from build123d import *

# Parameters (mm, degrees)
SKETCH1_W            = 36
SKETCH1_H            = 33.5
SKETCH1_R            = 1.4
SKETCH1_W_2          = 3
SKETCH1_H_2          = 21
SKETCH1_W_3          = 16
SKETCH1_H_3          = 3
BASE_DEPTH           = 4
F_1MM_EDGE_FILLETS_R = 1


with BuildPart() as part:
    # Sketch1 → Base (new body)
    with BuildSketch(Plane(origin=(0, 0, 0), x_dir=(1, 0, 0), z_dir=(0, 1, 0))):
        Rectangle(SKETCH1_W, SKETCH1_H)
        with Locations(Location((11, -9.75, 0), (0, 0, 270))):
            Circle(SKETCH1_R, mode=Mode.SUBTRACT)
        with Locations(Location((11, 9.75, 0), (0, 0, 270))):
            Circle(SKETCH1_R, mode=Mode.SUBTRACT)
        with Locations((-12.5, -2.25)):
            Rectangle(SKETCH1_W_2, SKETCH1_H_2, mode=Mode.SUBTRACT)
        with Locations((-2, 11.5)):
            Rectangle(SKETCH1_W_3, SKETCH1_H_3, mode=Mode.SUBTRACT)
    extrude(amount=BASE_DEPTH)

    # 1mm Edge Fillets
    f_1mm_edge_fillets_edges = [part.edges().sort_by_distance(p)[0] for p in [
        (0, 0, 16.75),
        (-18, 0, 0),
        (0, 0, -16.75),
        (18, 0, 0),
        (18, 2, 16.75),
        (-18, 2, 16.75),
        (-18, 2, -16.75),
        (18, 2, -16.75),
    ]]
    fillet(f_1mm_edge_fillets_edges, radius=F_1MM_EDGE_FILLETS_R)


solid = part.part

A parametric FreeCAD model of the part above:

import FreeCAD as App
import Part
import Sketcher
Q = App.Units.Quantity


def edges_at(feature, points):
    """Names of the edges that pass closest to the given points."""
    edges = feature.Shape.Edges
    near = lambda p: min(range(len(edges)), key=lambda i: edges[i].distToShape(Part.Vertex(*p))[0])
    return sorted({f"Edge{near(p) + 1}" for p in points})

doc = App.newDocument("Part")
body = doc.addObject("PartDesign::Body", "Body")

sketch1 = body.newObject("Sketcher::SketchObject", "Sketch")
sketch1.AttachmentSupport = (doc.getObject("XZ_Plane"), [""])
sketch1.MapMode = "FlatFace"
sketch1.addGeometry([
    Part.LineSegment(App.Vector(-18, -16.8, 0), App.Vector(-18, 16.8, 0)),
    Part.LineSegment(App.Vector(-18, 16.8, 0), App.Vector(18, 16.8, 0)),
    Part.LineSegment(App.Vector(18, 16.8, 0), App.Vector(18, -16.8, 0)),
    Part.LineSegment(App.Vector(18, -16.8, 0), App.Vector(-18, -16.8, 0)),
    Part.LineSegment(App.Vector(-11, 12.8, 0), App.Vector(-14, 12.8, 0)),
    Part.LineSegment(App.Vector(-14, 12.8, 0), App.Vector(-14, -8.2, 0)),
    Part.LineSegment(App.Vector(-14, -8.2, 0), App.Vector(-11, -8.2, 0)),
    Part.LineSegment(App.Vector(-11, -8.2, 0), App.Vector(-11, 12.8, 0)),
    Part.Circle(App.Vector(11, 9.8, 0), App.Vector(0, 0, 1), 1.4),
    Part.LineSegment(App.Vector(6, -10, 0), App.Vector(-10, -10, 0)),
    Part.LineSegment(App.Vector(-10, -10, 0), App.Vector(-10, -13, 0)),
    Part.LineSegment(App.Vector(-10, -13, 0), App.Vector(6, -13, 0)),
    Part.LineSegment(App.Vector(6, -13, 0), App.Vector(6, -10, 0)),
    Part.Circle(App.Vector(11, -9.8, 0), App.Vector(0, 0, 1), 1.4),
], False)
sketch1.addConstraint([
    Sketcher.Constraint("Coincident", 0, 2, 1, 1),
    Sketcher.Constraint("Coincident", 1, 2, 2, 1),
    Sketcher.Constraint("Coincident", 2, 2, 3, 1),
    Sketcher.Constraint("Coincident", 3, 2, 0, 1),
    Sketcher.Constraint("Coincident", 4, 2, 5, 1),
    Sketcher.Constraint("Coincident", 5, 2, 6, 1),
    Sketcher.Constraint("Coincident", 6, 2, 7, 1),
    Sketcher.Constraint("Coincident", 7, 2, 4, 1),
    Sketcher.Constraint("Coincident", 9, 2, 10, 1),
    Sketcher.Constraint("Coincident", 10, 2, 11, 1),
    Sketcher.Constraint("Coincident", 11, 2, 12, 1),
    Sketcher.Constraint("Coincident", 12, 2, 9, 1),
    Sketcher.Constraint("Vertical", 0),
    Sketcher.Constraint("Horizontal", 1),
    Sketcher.Constraint("Vertical", 2),
    Sketcher.Constraint("Horizontal", 3),
    Sketcher.Constraint("Horizontal", 4),
    Sketcher.Constraint("Vertical", 5),
    Sketcher.Constraint("Horizontal", 6),
    Sketcher.Constraint("Vertical", 7),
    Sketcher.Constraint("Horizontal", 9),
    Sketcher.Constraint("Vertical", 10),
    Sketcher.Constraint("Horizontal", 11),
    Sketcher.Constraint("Vertical", 12),
    Sketcher.Constraint("Equal", 8, 13),
    Sketcher.Constraint("Symmetric", 0, 2, 2, 2, -1, 1),
    Sketcher.Constraint("Symmetric", 8, 3, 13, 3, -1),
    Sketcher.Constraint("Equal", 6, 10),
    Sketcher.Constraint("Diameter", 8, Q("2.8 mm")),
    Sketcher.Constraint("DistanceX", 1, 1, 1, 2, Q("36 mm")),
    Sketcher.Constraint("DistanceX", 4, 2, 4, 1, Q("3 mm")),
    Sketcher.Constraint("DistanceX", 9, 2, 9, 1, Q("16 mm")),
    Sketcher.Constraint("DistanceY", 5, 2, 5, 1, Q("21 mm")),
    Sketcher.Constraint("DistanceY", 0, 1, 0, 2, Q("33.5 mm")),
    Sketcher.Constraint("DistanceX", -1, 1, 8, 3, Q("11 mm")),
    Sketcher.Constraint("DistanceX", 4, 2, -1, 1, Q("14 mm")),
    Sketcher.Constraint("DistanceX", 9, 2, -1, 1, Q("10 mm")),
    Sketcher.Constraint("DistanceY", 9, 2, -1, 1, Q("10 mm")),
    Sketcher.Constraint("DistanceY", 8, 3, 0, 2, Q("7 mm")),
    Sketcher.Constraint("DistanceY", 4, 2, 0, 2, Q("4 mm")),
])
pad1 = body.newObject("PartDesign::Pad", "Pad")
pad1.Profile = sketch1
pad1.Length = 4
pad1.Reversed = True
doc.recompute()

fillet = body.newObject("PartDesign::Fillet", "Fillet")
fillet.Base = (pad1, edges_at(pad1, [
    (0, 0, 16.75),
    (-18, 0, 0),
    (0, 0, -16.75),
    (18, 0, 0),
    (18, 2, 16.75),
    (-18, 2, 16.75),
    (-18, 2, -16.75),
    (18, 2, -16.75),
]))
fillet.Radius = 1

doc.recompute()
